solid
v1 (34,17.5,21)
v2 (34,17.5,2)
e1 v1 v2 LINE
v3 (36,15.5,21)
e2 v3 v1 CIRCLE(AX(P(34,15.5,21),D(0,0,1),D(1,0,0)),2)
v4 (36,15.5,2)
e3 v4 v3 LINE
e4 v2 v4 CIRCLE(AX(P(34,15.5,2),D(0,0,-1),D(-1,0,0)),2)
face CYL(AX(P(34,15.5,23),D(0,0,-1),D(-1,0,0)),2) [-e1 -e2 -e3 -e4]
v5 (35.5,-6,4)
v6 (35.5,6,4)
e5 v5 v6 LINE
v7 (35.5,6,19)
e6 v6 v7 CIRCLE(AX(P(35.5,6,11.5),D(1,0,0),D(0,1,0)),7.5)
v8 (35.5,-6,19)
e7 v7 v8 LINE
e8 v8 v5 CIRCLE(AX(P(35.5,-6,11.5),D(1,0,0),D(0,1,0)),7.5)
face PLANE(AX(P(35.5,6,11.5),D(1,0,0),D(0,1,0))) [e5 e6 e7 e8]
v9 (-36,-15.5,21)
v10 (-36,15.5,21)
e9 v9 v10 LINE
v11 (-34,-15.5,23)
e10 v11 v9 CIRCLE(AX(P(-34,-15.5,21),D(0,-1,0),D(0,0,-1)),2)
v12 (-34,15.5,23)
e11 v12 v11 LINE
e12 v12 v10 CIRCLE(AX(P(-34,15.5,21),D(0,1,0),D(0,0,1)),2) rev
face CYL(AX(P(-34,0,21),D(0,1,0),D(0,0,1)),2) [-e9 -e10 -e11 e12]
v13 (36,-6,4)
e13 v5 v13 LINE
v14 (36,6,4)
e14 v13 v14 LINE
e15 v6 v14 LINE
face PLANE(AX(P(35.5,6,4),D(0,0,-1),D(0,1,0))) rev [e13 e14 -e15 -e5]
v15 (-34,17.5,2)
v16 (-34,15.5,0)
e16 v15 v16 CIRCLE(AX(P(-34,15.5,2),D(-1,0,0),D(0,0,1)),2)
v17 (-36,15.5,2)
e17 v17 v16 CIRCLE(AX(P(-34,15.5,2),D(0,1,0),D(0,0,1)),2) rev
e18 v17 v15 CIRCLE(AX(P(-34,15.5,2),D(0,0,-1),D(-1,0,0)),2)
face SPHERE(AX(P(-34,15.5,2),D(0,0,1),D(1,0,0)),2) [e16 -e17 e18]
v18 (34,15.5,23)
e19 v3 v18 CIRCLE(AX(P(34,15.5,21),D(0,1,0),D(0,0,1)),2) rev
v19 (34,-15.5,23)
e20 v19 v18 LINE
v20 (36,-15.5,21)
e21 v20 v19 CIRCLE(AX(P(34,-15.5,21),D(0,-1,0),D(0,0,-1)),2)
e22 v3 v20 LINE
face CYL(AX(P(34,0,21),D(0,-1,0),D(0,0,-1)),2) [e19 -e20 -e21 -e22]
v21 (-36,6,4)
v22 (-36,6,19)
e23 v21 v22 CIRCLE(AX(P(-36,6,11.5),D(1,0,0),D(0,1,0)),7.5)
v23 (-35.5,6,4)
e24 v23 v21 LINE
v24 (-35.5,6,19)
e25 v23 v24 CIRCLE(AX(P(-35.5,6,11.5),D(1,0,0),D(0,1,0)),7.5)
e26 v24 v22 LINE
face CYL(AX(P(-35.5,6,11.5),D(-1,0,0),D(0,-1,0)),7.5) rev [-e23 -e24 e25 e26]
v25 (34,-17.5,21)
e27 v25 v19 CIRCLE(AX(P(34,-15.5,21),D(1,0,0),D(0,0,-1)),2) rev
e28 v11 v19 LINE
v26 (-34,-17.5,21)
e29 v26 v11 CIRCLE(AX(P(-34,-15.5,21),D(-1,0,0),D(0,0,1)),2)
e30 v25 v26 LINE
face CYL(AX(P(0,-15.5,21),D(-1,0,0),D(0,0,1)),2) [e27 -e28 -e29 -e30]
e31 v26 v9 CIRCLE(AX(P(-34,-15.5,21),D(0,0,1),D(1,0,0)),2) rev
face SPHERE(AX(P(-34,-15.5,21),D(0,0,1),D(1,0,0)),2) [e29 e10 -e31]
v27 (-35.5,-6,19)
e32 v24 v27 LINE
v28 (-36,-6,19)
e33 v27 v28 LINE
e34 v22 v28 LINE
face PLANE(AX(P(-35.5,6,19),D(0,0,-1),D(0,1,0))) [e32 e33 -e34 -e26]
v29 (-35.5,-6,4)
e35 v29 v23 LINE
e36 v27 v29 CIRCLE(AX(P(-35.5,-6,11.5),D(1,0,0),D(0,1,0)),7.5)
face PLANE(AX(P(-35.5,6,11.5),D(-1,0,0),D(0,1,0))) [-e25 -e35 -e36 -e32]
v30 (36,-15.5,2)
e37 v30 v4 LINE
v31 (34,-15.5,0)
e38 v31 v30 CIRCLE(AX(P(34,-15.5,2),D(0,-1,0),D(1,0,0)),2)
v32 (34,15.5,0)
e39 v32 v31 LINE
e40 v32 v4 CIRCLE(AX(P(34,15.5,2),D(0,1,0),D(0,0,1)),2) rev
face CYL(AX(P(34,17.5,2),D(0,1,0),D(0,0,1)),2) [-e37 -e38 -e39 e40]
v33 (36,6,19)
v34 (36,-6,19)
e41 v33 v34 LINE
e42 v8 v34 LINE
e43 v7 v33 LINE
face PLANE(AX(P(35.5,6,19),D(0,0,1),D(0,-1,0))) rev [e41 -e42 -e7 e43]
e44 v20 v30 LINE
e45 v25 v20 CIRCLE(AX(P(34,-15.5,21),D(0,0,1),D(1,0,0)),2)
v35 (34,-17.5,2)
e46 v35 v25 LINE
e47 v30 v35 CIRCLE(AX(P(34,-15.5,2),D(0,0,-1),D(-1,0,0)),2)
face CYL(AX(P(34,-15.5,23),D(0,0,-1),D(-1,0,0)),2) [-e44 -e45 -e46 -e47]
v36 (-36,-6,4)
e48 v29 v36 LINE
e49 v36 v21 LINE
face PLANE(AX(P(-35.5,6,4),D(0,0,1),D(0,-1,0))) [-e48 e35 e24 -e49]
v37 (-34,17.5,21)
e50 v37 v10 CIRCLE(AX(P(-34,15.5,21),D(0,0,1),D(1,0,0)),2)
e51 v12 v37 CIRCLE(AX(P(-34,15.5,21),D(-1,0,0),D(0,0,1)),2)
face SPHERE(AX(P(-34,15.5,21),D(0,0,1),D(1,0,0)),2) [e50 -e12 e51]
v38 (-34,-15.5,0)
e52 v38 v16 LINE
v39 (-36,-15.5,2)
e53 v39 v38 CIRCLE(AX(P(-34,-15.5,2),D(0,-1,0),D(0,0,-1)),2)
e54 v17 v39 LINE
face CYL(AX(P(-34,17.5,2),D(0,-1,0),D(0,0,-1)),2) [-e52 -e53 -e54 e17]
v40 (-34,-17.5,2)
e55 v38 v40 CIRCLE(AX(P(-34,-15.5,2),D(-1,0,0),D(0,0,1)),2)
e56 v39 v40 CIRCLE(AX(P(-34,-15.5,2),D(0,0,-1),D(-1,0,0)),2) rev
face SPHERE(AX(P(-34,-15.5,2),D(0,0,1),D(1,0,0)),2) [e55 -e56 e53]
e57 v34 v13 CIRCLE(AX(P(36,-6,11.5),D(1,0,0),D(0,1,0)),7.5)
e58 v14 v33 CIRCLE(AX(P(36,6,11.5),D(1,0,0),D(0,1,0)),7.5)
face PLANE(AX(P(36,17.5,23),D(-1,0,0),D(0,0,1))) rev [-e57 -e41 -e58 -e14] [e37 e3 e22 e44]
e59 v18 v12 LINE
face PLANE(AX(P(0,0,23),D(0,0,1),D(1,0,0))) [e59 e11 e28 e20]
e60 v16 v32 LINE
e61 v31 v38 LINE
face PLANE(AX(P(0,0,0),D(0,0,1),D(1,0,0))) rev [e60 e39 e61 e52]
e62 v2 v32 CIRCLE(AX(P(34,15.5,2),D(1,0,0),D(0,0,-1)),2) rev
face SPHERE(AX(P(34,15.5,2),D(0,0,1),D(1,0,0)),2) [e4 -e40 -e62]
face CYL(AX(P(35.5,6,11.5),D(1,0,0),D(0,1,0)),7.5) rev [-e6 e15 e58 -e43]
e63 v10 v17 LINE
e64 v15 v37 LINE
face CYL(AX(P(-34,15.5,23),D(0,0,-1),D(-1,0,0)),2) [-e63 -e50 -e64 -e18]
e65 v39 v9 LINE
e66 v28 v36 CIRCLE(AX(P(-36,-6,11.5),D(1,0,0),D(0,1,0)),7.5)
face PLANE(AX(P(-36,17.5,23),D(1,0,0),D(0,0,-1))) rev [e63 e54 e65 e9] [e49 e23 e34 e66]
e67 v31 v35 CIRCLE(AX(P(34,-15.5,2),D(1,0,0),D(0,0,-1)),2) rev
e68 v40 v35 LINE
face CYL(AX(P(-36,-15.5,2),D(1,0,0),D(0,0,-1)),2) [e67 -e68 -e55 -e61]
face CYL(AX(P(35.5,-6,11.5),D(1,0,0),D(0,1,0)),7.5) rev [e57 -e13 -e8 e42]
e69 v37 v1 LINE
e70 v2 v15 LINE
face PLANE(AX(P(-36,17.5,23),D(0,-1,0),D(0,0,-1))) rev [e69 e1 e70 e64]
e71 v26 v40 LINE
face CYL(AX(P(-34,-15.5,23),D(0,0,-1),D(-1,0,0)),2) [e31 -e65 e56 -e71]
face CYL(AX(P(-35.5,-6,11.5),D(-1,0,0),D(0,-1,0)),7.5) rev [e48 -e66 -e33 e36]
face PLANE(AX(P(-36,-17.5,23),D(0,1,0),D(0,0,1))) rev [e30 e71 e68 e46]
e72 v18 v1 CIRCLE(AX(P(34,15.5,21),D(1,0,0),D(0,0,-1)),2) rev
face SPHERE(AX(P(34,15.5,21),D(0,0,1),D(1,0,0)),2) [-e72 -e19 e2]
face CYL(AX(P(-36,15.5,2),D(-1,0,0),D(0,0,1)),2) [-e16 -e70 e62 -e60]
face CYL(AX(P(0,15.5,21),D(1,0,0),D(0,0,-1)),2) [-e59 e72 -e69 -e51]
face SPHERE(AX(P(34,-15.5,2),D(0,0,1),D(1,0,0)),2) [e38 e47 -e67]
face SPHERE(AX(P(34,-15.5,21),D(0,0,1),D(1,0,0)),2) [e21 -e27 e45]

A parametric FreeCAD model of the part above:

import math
import FreeCAD as App
import Part
import Sketcher
Q = App.Units.Quantity


def edges_at(feature, points):
    """Names of the edges that pass closest to the given points."""
    edges = feature.Shape.Edges
    near = lambda p: min(range(len(edges)), key=lambda i: edges[i].distToShape(Part.Vertex(*p))[0])
    return sorted({f"Edge{near(p) + 1}" for p in points})

doc = App.newDocument("Part")
body = doc.addObject("PartDesign::Body", "Body")

# Sketch on XY plane
sketch1 = body.newObject("Sketcher::SketchObject", "Sketch")
sketch1.AttachmentSupport = (doc.getObject("XY_Plane"), [""])
sketch1.MapMode = "FlatFace"
sketch1.addGeometry(Part.LineSegment(App.Vector(-36, 18, 0), App.Vector(-36, -18, 0)), False)
sketch1.addGeometry(Part.LineSegment(App.Vector(-36, -18, 0), App.Vector(36, -18, 0)), False)
sketch1.addGeometry(Part.LineSegment(App.Vector(36, -18, 0), App.Vector(36, 18, 0)), False)
sketch1.addGeometry(Part.LineSegment(App.Vector(36, 18, 0), App.Vector(-36, 18, 0)), False)
sketch1.addConstraint(Sketcher.Constraint("Coincident", 0, 2, 1, 1))
sketch1.addConstraint(Sketcher.Constraint("Coincident", 1, 2, 2, 1))
sketch1.addConstraint(Sketcher.Constraint("Coincident", 2, 2, 3, 1))
sketch1.addConstraint(Sketcher.Constraint("Coincident", 3, 2, 0, 1))
sketch1.addConstraint(Sketcher.Constraint("Vertical", 0))
sketch1.addConstraint(Sketcher.Constraint("Horizontal", 1))
sketch1.addConstraint(Sketcher.Constraint("Vertical", 2))
sketch1.addConstraint(Sketcher.Constraint("Horizontal", 3))
sketch1.addConstraint(Sketcher.Constraint("Symmetric", 0, 2, 2, 2, -1, 1))
sketch1.addConstraint(Sketcher.Constraint("DistanceX", 1, 1, 1, 2, Q("72 mm")))
sketch1.addConstraint(Sketcher.Constraint("DistanceY", 0, 2, 0, 1, Q("35 mm")))
pad1 = body.newObject("PartDesign::Pad", "Pad")
pad1.Profile = sketch1
pad1.Length = 23

# Sketch on YZ plane
sketch2 = body.newObject("Sketcher::SketchObject", "Sketch001")
sketch2.AttachmentSupport = (doc.getObject("YZ_Plane"), [""])
sketch2.MapMode = "FlatFace"
sketch2.AttachmentOffset = App.Placement(App.Vector(0, 0, 36), App.Rotation())
sketch2.addGeometry(Part.LineSegment(App.Vector(-6, 4, 0), App.Vector(6, 4, 0)), False)
sketch2.addGeometry(Part.ArcOfCircle(Part.Circle(App.Vector(6, 12, 0), App.Vector(0, 0, 1), 8), math.radians(-90), math.radians(90)), False)
sketch2.addGeometry(Part.LineSegment(App.Vector(6, 19, 0), App.Vector(-6, 19, 0)), False)
sketch2.addGeometry(Part.ArcOfCircle(Part.Circle(App.Vector(-6, 12, 0), App.Vector(0, 0, 1), 8), math.radians(90), math.radians(270)), False)
sketch2.addConstraint(Sketcher.Constraint("Tangent", 0, 2, 1, 1))
sketch2.addConstraint(Sketcher.Constraint("Tangent", 1, 2, 2, 1))
sketch2.addConstraint(Sketcher.Constraint("Tangent", 2, 2, 3, 1))
sketch2.addConstraint(Sketcher.Constraint("Tangent", 3, 2, 0, 1))
sketch2.addConstraint(Sketcher.Constraint("Horizontal", 0))
sketch2.addConstraint(Sketcher.Constraint("Horizontal", 2))
sketch2.addConstraint(Sketcher.Constraint("Radius", 1, Q("7.5 mm")))
sketch2.addConstraint(Sketcher.Constraint("DistanceX", 0, 1, 0, 2, Q("12 mm")))
sketch2.addConstraint(Sketcher.Constraint("DistanceX", -1, 1, 1, 3, Q("6 mm")))
sketch2.addConstraint(Sketcher.Constraint("DistanceY", -1, 1, 0, 2, Q("4 mm")))
pocket1 = body.newObject("PartDesign::Pocket", "Pocket")
pocket1.Profile = sketch2
pocket1.Length = 0.5
doc.recompute()

mirrored = body.newObject("PartDesign::Mirrored", "Mirrored")
mirrored.Originals = [pocket1]
mirrored.MirrorPlane = (doc.getObject("YZ_Plane"), [""])
body.Tip = mirrored
doc.recompute()

fillet = body.newObject("PartDesign::Fillet", "Fillet")
fillet.Base = (mirrored, edges_at(mirrored, [
    (-36, 0, 23),
    (0, -17.5, 23),
    (36, 0, 23),
    (0, -17.5, 0),
    (-36, 0, 0),
    (0, 17.5, 0),
    (36, 0, 0),
    (0, 17.5, 23),
    (36, -17.5, 11.5),
    (-36, -17.5, 11.5),
    (-36, 17.5, 11.5),
    (36, 17.5, 11.5),
]))
fillet.Radius = 2

doc.recompute()
